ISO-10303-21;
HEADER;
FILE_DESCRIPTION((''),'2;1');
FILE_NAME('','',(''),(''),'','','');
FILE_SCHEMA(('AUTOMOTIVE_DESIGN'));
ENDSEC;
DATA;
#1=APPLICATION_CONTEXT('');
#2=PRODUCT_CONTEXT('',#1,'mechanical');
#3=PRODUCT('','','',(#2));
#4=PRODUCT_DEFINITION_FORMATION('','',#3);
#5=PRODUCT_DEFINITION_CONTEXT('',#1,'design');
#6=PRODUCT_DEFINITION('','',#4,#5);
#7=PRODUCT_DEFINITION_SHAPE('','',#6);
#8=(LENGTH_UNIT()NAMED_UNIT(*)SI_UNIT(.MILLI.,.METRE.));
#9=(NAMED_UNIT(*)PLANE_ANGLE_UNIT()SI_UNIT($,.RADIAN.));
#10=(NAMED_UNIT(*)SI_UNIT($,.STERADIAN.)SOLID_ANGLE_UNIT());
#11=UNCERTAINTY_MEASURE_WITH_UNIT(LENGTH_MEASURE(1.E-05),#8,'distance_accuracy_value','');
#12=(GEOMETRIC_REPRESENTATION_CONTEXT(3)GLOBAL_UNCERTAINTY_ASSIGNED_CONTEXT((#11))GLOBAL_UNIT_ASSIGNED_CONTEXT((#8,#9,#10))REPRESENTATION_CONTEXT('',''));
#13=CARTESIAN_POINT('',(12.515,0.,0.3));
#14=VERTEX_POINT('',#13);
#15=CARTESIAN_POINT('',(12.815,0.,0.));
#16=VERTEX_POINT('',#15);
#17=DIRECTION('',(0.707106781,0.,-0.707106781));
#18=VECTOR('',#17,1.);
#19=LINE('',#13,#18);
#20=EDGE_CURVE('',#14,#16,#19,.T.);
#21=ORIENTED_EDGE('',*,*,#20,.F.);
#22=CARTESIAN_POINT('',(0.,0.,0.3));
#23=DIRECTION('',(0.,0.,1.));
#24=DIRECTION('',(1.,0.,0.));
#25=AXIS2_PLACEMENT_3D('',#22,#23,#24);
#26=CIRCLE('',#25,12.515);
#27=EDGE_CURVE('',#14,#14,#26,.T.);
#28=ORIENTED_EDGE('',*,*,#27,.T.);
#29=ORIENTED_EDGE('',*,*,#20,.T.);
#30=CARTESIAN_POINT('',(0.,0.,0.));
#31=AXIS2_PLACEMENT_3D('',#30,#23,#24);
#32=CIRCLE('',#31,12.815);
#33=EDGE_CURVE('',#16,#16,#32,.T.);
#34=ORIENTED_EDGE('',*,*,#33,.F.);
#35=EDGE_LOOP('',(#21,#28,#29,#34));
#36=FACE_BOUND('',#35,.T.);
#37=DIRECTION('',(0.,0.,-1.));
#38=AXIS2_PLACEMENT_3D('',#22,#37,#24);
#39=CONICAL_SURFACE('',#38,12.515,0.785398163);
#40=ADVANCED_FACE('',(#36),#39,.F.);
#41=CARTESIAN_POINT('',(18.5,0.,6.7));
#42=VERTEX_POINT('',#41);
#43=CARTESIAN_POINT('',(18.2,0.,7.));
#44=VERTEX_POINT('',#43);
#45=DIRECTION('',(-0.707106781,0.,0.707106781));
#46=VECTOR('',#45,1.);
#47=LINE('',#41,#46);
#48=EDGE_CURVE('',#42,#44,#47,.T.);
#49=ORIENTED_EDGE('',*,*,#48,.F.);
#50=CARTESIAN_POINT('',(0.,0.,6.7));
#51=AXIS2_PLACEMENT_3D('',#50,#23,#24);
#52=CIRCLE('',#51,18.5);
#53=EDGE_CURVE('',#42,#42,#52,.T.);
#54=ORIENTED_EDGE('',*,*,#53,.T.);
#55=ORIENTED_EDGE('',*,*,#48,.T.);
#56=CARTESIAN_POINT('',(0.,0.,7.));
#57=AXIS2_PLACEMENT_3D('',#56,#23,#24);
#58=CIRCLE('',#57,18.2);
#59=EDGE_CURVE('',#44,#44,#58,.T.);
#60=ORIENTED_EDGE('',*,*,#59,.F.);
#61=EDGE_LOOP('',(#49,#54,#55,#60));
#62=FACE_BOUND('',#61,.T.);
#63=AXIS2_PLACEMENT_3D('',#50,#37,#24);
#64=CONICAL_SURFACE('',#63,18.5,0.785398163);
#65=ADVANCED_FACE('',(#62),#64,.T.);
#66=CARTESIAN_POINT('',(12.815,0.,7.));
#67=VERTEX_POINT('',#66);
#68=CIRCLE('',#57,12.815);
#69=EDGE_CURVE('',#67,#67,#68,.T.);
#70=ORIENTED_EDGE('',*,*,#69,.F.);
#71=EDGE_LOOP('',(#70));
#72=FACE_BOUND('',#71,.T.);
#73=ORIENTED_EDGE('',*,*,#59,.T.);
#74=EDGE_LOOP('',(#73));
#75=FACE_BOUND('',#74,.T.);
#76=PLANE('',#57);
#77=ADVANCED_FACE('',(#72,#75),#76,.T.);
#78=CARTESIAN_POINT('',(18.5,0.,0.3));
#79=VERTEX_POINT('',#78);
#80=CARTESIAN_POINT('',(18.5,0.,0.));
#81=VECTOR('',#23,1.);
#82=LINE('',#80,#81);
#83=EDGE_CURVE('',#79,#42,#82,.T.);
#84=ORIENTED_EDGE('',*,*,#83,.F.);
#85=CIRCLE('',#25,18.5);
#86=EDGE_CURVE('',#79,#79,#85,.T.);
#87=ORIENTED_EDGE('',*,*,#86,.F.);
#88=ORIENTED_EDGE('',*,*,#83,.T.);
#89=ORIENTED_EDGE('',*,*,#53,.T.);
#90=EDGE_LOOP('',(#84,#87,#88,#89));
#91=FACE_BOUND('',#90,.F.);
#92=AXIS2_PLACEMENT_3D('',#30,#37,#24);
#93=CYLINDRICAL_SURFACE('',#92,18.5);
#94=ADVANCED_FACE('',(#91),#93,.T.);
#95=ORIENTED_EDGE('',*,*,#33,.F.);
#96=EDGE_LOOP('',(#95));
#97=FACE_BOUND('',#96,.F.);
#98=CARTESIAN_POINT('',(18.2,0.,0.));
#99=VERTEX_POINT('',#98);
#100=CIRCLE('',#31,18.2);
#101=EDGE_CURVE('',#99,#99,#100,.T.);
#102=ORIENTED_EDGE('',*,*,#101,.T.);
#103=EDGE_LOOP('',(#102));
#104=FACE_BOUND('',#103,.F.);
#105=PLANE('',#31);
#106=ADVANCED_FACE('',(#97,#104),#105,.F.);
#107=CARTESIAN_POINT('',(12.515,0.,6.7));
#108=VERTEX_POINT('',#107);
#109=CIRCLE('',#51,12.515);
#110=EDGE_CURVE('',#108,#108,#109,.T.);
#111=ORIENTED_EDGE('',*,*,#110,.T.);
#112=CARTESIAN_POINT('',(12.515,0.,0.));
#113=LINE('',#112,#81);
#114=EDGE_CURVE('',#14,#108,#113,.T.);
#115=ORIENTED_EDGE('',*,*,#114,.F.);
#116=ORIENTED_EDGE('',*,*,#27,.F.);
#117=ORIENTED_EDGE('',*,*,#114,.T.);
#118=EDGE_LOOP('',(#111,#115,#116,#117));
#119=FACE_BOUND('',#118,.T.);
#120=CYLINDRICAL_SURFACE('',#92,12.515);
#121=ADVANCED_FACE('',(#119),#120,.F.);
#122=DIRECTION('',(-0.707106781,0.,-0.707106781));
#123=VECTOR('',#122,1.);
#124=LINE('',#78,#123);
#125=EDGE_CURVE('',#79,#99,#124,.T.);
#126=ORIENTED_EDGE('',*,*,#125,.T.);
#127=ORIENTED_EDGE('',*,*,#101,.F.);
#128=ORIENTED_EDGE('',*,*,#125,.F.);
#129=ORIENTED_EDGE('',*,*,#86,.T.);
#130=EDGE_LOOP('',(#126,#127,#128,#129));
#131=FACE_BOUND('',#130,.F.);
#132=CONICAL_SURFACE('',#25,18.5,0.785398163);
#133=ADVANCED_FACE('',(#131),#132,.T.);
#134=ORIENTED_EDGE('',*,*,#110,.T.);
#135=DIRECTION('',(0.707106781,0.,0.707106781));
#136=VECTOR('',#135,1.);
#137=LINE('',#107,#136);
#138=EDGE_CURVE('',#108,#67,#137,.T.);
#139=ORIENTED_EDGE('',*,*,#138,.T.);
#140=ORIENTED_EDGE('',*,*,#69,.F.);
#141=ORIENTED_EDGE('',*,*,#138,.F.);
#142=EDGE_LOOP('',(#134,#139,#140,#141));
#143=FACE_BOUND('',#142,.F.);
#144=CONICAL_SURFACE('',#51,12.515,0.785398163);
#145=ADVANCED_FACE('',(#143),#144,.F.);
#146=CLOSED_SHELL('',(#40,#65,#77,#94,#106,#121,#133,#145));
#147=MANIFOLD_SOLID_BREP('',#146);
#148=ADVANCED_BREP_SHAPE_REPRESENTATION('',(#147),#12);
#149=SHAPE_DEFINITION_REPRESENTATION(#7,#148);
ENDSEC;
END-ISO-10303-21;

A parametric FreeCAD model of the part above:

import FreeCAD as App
import Part
import Sketcher
Q = App.Units.Quantity


def edges_at(feature, points):
    """Names of the edges that pass closest to the given points."""
    edges = feature.Shape.Edges
    near = lambda p: min(range(len(edges)), key=lambda i: edges[i].distToShape(Part.Vertex(*p))[0])
    return sorted({f"Edge{near(p) + 1}" for p in points})

doc = App.newDocument("Part")
body = doc.addObject("PartDesign::Body", "Body")

sketch1 = body.newObject("Sketcher::SketchObject", "Sketch")
sketch1.AttachmentSupport = (doc.getObject("XY_Plane"), [""])
sketch1.MapMode = "FlatFace"
sketch1.addGeometry([
    Part.Circle(App.Vector(0, 0, 0), App.Vector(0, 0, 1), 18),
    Part.Circle(App.Vector(0, 0, 0), App.Vector(0, 0, 1), 13),
], False)
sketch1.addConstraint([
    Sketcher.Constraint("Coincident", 0, 3, -1, 1),
    Sketcher.Constraint("Coincident", 1, 3, -1, 1),
    Sketcher.Constraint("Diameter", 0, Q("37 mm")),
    Sketcher.Constraint("Diameter", 1, Q("25.03 mm")),
])
pad1 = body.newObject("PartDesign::Pad", "Pad")
pad1.Profile = sketch1
pad1.Length = 7
doc.recompute()

chamfer = body.newObject("PartDesign::Chamfer", "Chamfer")
chamfer.Base = (pad1, edges_at(pad1, [
    (-18.5, 0, 7),
    (-18.5, 0, 0),
    (-12.515, 0, 0),
    (-12.515, 0, 7),
]))
chamfer.Size = 0.3

doc.recompute()
